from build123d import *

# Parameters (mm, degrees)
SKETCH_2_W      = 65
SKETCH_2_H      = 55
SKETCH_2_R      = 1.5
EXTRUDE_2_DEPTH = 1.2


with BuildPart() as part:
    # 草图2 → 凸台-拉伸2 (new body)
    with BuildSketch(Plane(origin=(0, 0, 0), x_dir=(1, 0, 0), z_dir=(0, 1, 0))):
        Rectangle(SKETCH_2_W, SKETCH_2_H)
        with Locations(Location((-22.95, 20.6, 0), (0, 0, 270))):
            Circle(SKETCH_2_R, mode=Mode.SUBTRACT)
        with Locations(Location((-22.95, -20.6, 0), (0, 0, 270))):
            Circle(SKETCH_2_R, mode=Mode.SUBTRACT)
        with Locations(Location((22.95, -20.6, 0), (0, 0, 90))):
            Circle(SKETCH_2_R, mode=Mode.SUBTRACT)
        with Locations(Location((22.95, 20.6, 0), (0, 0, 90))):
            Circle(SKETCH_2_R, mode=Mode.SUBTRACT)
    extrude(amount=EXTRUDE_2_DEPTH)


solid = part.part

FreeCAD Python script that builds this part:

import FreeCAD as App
import Part
import Sketcher
from FreeCAD import Vector
Q = App.Units.Quantity

doc = App.newDocument("Part")
params = doc.addObject("Spreadsheet::Sheet", "Params")
for row, (alias, value) in enumerate([
    ("sketch1_diameter", "3 mm"),
    ("sketch1_width", "65 mm"),
    ("sketch1_height", "55 mm"),
    ("pad1_length", "1.2 mm"),
], start=1):
    params.set(f"A{row}", alias)
    params.set(f"B{row}", "=" + value)
    params.setAlias(f"B{row}", alias)

body = doc.addObject("PartDesign::Body", "Body")

# Sketch on XZ plane
sketch1 = body.newObject("Sketcher::SketchObject", "Sketch")
sketch1.AttachmentSupport = (doc.getObject("XZ_Plane"), [""])
sketch1.MapMode = "FlatFace"
sketch1.addGeometry([
    Part.LineSegment(Vector(-32.5, -27.5, 0), Vector(-32.5, 27.5, 0)),  # 0
    Part.LineSegment(Vector(-32.5, 27.5, 0), Vector(32.5, 27.5, 0)),  # 1
    Part.LineSegment(Vector(32.5, 27.5, 0), Vector(32.5, -27.5, 0)),  # 2
    Part.LineSegment(Vector(32.5, -27.5, 0), Vector(-32.5, -27.5, 0)),  # 3
    Part.Circle(Vector(-22.9, 20.6, 0), Vector(0, 0, 1), 1.5),  # 4
    Part.Circle(Vector(22.9, 20.6, 0), Vector(0, 0, 1), 1.5),  # 5
    Part.Circle(Vector(-22.9, -20.6, 0), Vector(0, 0, 1), 1.5),  # 6
    Part.Circle(Vector(22.9, -20.6, 0), Vector(0, 0, 1), 1.5),  # 7
], False)
sketch1.addConstraint([
    Sketcher.Constraint("Coincident", 0, 2, 1, 1),
    Sketcher.Constraint("Coincident", 1, 2, 2, 1),
    Sketcher.Constraint("Coincident", 2, 2, 3, 1),
    Sketcher.Constraint("Coincident", 3, 2, 0, 1),
    Sketcher.Constraint("Vertical", 0),
    Sketcher.Constraint("Horizontal", 1),
    Sketcher.Constraint("Vertical", 2),
    Sketcher.Constraint("Horizontal", 3),
    Sketcher.Constraint("Equal", 4, 5),
    Sketcher.Constraint("Equal", 5, 6),
    Sketcher.Constraint("Equal", 6, 7),
    Sketcher.Constraint("Symmetric", 5, 3, 6, 3, -1, 1),
    Sketcher.Constraint("Symmetric", 4, 3, 7, 3, -1, 1),
    Sketcher.Constraint("Symmetric", 0, 2, 2, 2, -1, 1),
    Sketcher.Constraint("Symmetric", 4, 3, 5, 3, -2),
    Sketcher.Constraint("Diameter", 4, Q("3 mm")),
    Sketcher.Constraint("DistanceX", 1, 1, 1, 2, Q("65 mm")),
    Sketcher.Constraint("DistanceY", 0, 1, 0, 2, Q("55 mm")),
    Sketcher.Constraint("DistanceY", -1, 1, 4, 3, Q("20.6 mm")),
    Sketcher.Constraint("DistanceX", 4, 3, 5, 3, Q("45.9 mm")),
])
sketch1.setExpression("Constraints[15]", "Params.sketch1_diameter")
sketch1.setExpression("Constraints[16]", "Params.sketch1_width")
sketch1.setExpression("Constraints[17]", "Params.sketch1_height")
pad1 = body.newObject("PartDesign::Pad", "Pad")
pad1.Profile = sketch1
pad1.setExpression("Length", "Params.pad1_length")
pad1.Reversed = True

doc.recompute()
